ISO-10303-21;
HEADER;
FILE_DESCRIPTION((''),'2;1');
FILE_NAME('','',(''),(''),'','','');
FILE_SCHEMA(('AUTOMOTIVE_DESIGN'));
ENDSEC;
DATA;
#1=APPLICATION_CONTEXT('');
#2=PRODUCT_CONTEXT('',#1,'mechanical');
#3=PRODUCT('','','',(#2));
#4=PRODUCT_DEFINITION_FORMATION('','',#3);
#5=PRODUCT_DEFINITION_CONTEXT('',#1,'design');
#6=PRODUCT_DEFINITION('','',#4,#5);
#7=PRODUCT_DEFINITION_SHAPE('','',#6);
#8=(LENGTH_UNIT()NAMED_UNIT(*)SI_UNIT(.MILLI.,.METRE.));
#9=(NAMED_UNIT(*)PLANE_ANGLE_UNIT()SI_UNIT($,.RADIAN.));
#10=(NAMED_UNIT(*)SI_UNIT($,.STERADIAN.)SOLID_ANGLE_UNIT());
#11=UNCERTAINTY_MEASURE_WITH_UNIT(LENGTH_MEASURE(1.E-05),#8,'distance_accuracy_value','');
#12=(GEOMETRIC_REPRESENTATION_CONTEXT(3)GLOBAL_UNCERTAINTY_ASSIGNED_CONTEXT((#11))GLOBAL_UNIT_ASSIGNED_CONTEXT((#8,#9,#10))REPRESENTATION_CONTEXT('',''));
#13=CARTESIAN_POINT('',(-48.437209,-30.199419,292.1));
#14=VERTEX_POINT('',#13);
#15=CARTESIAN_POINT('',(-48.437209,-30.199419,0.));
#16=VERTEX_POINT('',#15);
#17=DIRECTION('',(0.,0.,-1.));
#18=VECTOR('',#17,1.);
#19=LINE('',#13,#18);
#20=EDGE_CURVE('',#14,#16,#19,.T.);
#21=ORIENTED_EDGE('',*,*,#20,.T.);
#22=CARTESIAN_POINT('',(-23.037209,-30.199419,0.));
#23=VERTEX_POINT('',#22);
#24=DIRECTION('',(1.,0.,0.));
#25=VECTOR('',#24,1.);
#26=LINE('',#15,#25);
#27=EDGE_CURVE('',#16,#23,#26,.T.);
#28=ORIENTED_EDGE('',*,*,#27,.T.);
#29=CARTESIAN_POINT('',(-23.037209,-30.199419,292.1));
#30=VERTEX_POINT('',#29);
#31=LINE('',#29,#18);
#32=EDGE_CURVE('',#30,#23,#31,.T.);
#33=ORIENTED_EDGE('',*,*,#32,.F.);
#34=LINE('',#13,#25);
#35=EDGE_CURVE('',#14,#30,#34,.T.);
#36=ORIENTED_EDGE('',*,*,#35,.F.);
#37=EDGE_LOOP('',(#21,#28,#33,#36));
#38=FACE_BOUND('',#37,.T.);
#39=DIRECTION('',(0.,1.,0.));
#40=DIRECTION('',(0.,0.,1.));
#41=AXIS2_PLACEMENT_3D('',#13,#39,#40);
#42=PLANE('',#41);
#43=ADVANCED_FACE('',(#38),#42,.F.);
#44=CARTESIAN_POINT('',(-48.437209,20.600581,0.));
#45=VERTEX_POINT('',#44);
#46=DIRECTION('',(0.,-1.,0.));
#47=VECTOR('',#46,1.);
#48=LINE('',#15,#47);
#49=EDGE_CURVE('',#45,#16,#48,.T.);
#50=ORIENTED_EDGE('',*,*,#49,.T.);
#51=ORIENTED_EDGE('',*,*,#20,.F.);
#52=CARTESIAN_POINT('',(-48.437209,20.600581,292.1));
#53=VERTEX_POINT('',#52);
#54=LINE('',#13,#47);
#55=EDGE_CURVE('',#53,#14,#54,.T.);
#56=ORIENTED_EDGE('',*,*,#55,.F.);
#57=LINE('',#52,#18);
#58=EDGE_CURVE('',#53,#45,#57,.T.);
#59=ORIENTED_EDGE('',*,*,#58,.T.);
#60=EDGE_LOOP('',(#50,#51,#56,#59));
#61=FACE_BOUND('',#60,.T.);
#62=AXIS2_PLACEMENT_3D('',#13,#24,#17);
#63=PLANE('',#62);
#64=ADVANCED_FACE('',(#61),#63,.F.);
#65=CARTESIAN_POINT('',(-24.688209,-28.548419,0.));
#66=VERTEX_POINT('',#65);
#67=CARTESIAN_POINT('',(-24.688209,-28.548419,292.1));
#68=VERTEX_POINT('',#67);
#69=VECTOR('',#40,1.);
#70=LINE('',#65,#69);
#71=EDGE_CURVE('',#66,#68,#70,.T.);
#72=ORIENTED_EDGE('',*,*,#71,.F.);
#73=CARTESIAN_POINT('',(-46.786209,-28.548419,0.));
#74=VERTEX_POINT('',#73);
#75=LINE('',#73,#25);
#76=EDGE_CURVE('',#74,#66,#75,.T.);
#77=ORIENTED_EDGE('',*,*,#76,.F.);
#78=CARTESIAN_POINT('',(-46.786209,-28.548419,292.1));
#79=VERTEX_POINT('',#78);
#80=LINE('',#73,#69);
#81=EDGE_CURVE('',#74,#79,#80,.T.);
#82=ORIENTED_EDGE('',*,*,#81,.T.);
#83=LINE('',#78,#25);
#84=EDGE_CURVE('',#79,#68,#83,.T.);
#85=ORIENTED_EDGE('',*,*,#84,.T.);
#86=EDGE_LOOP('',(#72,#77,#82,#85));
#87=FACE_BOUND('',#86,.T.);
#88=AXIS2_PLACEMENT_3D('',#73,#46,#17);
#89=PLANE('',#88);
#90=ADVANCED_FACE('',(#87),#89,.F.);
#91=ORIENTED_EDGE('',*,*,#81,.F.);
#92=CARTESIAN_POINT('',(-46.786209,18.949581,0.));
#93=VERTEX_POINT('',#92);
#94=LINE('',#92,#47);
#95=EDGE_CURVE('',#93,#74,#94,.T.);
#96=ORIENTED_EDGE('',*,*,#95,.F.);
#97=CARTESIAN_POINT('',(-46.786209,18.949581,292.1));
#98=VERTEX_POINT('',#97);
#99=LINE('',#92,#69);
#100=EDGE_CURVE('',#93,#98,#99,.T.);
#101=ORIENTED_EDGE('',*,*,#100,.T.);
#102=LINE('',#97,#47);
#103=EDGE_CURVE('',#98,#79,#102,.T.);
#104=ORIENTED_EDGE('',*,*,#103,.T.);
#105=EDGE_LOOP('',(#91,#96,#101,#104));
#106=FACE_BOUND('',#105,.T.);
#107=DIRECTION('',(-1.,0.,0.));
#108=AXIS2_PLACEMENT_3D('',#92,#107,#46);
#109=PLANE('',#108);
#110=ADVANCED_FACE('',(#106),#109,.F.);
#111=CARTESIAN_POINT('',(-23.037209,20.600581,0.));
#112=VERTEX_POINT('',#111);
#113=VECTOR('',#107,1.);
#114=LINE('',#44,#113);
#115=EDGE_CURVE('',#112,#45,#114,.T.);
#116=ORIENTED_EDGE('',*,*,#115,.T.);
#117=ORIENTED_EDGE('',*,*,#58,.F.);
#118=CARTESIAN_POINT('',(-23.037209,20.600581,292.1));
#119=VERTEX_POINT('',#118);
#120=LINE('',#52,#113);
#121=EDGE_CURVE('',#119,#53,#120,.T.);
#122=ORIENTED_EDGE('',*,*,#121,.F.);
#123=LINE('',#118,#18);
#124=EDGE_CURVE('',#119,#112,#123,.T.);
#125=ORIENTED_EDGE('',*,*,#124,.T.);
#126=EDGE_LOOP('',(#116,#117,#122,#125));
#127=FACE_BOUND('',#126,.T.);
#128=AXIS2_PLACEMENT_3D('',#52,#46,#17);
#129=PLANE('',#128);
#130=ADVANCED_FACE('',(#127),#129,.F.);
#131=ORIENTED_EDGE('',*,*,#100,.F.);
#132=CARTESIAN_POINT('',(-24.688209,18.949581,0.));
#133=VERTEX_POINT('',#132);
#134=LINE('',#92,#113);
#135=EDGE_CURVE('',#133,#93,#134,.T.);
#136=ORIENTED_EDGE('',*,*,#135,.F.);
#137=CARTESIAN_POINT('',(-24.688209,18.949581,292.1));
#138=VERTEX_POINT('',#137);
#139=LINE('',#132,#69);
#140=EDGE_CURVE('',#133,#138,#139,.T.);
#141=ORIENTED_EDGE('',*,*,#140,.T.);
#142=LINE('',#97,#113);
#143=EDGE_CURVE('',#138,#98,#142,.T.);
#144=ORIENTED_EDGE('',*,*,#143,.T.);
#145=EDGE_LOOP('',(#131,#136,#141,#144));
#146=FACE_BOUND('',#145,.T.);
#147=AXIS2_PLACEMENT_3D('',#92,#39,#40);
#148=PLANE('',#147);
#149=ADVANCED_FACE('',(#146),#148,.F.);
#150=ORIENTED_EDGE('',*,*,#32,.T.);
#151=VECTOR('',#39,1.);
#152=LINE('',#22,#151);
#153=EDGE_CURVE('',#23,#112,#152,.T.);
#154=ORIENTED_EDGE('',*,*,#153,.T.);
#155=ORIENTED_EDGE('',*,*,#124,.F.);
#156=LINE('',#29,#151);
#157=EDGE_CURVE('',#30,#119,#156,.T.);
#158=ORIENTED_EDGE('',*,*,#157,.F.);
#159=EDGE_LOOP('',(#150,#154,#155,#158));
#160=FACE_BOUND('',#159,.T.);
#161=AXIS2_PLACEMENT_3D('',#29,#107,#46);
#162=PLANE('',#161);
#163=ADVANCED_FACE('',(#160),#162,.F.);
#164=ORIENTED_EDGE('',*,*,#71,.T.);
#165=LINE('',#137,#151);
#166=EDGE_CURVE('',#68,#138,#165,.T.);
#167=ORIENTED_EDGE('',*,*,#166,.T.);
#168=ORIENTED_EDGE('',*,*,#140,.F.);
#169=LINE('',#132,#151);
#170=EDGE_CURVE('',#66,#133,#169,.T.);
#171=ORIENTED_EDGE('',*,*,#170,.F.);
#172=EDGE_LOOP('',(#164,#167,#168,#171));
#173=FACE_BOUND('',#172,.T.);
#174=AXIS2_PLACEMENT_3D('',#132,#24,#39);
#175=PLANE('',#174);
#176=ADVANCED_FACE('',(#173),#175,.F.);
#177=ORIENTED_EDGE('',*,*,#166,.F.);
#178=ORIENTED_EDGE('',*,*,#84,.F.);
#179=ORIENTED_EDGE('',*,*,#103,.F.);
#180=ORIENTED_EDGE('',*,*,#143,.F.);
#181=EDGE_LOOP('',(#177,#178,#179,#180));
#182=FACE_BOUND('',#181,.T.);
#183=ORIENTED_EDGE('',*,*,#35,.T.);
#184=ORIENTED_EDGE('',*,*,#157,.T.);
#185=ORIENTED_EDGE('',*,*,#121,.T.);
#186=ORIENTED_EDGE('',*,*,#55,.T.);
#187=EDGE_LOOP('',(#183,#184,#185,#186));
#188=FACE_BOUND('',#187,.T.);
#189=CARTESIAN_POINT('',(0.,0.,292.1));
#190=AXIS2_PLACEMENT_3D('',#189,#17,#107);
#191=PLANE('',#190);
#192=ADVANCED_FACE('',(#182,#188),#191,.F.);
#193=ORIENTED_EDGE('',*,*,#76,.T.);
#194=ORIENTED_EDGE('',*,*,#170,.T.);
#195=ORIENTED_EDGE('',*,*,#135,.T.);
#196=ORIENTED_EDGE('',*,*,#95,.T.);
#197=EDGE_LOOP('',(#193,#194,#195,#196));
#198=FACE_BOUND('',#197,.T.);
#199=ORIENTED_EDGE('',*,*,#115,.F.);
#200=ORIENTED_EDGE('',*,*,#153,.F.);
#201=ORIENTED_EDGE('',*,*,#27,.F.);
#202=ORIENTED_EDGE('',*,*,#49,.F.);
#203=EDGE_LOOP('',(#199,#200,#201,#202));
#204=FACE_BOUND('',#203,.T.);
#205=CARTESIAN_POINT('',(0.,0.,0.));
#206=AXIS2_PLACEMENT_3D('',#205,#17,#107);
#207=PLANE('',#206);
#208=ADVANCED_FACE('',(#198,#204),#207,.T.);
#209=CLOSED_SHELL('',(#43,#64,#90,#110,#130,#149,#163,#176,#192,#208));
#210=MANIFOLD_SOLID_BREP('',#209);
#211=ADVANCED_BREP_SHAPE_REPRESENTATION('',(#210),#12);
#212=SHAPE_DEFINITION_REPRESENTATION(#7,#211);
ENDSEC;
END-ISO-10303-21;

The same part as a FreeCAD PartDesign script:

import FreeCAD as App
import Part
import Sketcher

V = App.Vector
Q = App.Units.Quantity


def add_polygon(sketch, points):
    """Adds a closed chain of lines whose ends are joined by coincident constraints."""
    first, n = sketch.GeometryCount, len(points)
    for a, b in zip(points, points[1:] + points[:1]):
        sketch.addGeometry(Part.LineSegment(App.Vector(*a, 0), App.Vector(*b, 0)), False)
    for i in range(n):
        sketch.addConstraint(Sketcher.Constraint("Coincident", first + i, 2, first + (i + 1) % n, 1))

doc = App.newDocument("Part")
body = doc.addObject("PartDesign::Body", "Body")

# Sketch on XY plane
sketch1 = body.newObject("Sketcher::SketchObject", "Sketch")
sketch1.AttachmentSupport = (doc.getObject("XY_Plane"), [""])
sketch1.MapMode = "FlatFace"
add_polygon(sketch1, [(-48, 21), (-48, -30), (-23, -30), (-23, 21)])  # lines 0-3
sketch1.addConstraint(Sketcher.Constraint("Vertical", 0))
sketch1.addConstraint(Sketcher.Constraint("Horizontal", 1))
sketch1.addConstraint(Sketcher.Constraint("Vertical", 2))
sketch1.addConstraint(Sketcher.Constraint("Horizontal", 3))
sketch1.addConstraint(Sketcher.Constraint("DistanceX", 1, 1, 1, 2, Q("1 in")))
sketch1.addConstraint(Sketcher.Constraint("DistanceY", 0, 2, 0, 1, Q("2 in")))
sketch1.addConstraint(Sketcher.Constraint("DistanceX", 0, 2, -1, 1, 48.437209))
sketch1.addConstraint(Sketcher.Constraint("DistanceY", 0, 2, -1, 1, 30.199419))
pad1 = body.newObject("PartDesign::Pad", "Pad")
pad1.Profile = sketch1
pad1.Length = Q("11.5 in")

# Sketch on XY plane
sketch2 = body.newObject("Sketcher::SketchObject", "Sketch001")
sketch2.AttachmentSupport = (doc.getObject("XY_Plane"), [""])
sketch2.MapMode = "FlatFace"
sketch2.AttachmentOffset = App.Placement(V(0, 0, 11.5 * 25.4), App.Rotation())
add_polygon(sketch2, [(-47, 19), (-47, -29), (-25, -29), (-25, 19)])  # lines 0-3
sketch2.addConstraint(Sketcher.Constraint("Vertical", 0))
sketch2.addConstraint(Sketcher.Constraint("Horizontal", 1))
sketch2.addConstraint(Sketcher.Constraint("Vertical", 2))
sketch2.addConstraint(Sketcher.Constraint("Horizontal", 3))
sketch2.addConstraint(Sketcher.Constraint("DistanceX", 1, 1, 1, 2, Q("0.87 in")))
sketch2.addConstraint(Sketcher.Constraint("DistanceY", 0, 2, 0, 1, Q("1.87 in")))
sketch2.addConstraint(Sketcher.Constraint("DistanceX", 0, 2, -1, 1, 46.786209))
sketch2.addConstraint(Sketcher.Constraint("DistanceY", 0, 2, -1, 1, 28.548419))
pocket1 = body.newObject("PartDesign::Pocket", "Pocket")
pocket1.Profile = sketch2
pocket1.Type = "ThroughAll"

doc.recompute()
